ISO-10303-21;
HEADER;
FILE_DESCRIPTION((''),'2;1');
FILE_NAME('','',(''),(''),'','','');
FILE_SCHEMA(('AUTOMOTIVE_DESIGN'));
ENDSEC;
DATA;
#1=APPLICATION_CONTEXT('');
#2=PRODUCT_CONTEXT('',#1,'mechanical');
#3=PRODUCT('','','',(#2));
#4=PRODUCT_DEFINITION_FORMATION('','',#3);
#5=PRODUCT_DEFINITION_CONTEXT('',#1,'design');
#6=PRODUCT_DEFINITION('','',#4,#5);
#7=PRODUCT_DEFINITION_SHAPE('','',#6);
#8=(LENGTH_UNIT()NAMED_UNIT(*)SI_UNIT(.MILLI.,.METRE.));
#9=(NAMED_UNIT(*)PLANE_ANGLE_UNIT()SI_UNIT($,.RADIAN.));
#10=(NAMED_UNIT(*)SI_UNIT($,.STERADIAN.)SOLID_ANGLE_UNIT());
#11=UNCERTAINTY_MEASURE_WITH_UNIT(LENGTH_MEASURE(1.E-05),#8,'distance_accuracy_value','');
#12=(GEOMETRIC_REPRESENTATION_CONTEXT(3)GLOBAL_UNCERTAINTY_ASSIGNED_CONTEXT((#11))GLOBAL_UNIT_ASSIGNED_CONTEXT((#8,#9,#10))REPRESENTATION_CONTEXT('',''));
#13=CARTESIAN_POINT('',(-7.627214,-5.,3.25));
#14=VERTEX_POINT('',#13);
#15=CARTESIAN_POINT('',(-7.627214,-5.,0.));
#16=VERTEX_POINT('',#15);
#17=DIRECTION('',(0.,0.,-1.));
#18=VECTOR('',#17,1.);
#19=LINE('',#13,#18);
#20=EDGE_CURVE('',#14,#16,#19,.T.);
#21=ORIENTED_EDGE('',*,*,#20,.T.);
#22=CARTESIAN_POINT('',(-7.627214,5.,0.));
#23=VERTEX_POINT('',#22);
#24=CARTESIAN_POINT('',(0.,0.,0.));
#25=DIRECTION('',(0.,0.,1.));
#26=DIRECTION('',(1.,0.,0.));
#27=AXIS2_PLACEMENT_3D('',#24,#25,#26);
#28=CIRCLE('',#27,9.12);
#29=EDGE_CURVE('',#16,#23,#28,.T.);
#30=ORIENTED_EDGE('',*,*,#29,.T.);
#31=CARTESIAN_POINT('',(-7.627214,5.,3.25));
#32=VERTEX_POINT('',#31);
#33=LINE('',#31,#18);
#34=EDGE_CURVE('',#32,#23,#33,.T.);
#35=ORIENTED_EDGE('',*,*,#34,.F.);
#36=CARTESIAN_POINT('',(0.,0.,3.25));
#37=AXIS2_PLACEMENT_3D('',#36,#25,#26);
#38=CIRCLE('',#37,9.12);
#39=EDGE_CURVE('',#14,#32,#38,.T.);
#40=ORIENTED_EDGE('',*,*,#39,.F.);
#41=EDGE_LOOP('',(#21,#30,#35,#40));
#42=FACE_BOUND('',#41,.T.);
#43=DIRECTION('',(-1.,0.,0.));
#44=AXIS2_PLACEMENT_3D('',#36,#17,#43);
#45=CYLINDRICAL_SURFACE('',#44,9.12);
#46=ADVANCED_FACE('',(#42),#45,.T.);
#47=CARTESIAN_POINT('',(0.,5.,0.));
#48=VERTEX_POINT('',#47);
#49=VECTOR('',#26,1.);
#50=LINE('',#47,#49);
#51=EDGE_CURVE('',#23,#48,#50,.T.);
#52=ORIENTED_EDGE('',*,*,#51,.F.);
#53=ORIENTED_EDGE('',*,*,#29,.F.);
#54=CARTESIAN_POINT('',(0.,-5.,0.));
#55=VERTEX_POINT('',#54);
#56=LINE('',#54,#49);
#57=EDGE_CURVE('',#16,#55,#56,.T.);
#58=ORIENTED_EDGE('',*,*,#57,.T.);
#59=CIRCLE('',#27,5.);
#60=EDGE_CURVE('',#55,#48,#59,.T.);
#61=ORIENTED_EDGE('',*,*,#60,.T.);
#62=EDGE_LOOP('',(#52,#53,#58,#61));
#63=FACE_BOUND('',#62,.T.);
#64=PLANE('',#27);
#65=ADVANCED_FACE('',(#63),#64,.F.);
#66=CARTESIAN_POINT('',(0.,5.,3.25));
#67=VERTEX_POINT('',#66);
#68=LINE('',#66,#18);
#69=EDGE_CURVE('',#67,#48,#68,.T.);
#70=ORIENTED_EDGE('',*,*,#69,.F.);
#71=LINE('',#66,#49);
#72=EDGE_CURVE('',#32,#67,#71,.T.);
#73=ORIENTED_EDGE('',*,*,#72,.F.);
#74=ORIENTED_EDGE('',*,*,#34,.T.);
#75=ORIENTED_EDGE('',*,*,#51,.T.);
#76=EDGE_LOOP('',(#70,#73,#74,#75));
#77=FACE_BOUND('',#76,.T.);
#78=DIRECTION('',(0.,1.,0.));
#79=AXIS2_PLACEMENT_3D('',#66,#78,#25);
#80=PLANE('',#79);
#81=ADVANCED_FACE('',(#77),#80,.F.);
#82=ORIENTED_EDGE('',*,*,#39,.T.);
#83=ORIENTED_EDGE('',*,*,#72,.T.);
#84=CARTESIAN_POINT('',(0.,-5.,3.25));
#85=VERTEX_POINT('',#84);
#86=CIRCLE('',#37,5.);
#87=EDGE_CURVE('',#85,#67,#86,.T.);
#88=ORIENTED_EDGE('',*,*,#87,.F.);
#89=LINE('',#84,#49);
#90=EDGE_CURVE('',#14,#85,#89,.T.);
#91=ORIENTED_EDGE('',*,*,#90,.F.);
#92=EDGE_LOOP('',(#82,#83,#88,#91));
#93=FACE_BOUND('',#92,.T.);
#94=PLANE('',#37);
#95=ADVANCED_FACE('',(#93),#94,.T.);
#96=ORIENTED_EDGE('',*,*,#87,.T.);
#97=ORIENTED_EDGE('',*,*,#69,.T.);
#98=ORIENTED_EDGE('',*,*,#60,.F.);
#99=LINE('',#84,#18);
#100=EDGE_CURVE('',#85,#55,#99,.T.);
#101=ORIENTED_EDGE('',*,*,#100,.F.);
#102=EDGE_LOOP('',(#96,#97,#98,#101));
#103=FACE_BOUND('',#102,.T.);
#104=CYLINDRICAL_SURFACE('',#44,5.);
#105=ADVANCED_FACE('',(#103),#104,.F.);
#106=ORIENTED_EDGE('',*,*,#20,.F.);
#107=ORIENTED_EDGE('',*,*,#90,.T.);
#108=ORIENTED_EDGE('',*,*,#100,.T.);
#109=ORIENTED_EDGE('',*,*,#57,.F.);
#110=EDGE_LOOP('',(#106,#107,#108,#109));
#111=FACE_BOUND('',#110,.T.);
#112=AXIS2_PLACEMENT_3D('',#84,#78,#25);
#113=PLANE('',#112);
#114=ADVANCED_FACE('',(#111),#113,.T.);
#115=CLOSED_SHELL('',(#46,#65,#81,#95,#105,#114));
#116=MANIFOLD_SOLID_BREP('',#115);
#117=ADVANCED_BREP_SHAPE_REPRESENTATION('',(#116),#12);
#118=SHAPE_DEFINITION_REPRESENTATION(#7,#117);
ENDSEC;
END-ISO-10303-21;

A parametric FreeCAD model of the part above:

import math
import FreeCAD as App
import Part
import Sketcher

V = App.Vector

doc = App.newDocument("Part")
body = doc.addObject("PartDesign::Body", "Body")

# Sketch on XY plane
sketch1 = doc.addObject("Sketcher::SketchObject", "Sketch")
body.addObject(sketch1)
sketch1.AttachmentSupport = (doc.XY_Plane, [""])
sketch1.MapMode = "FlatFace"
sketch1.addGeometry(Part.ArcOfCircle(Part.Circle(V(0, 0, 0), V(0, 0, 1), 9.12), math.radians(-146.753262), math.radians(146.753262)), False)
sketch1.addGeometry(Part.LineSegment(V(-7.627214, 5, 0), V(0, 5, 0)), False)
sketch1.addGeometry(Part.ArcOfCircle(Part.Circle(V(0, 0, 0), V(0, 0, 1), 5), math.radians(-90), math.radians(90)), False)
sketch1.addGeometry(Part.LineSegment(V(0, -5, 0), V(-7.627214, -5, 0)), False)
sketch1.addConstraint(Sketcher.Constraint("Coincident", 0, 2, 1, 1))
sketch1.addConstraint(Sketcher.Constraint("Tangent", 1, 2, 2, 2))
sketch1.addConstraint(Sketcher.Constraint("Tangent", 2, 1, 3, 1))
sketch1.addConstraint(Sketcher.Constraint("Coincident", 3, 2, 0, 1))
sketch1.addConstraint(Sketcher.Constraint("Horizontal", 1))
sketch1.addConstraint(Sketcher.Constraint("Horizontal", 3))
sketch1.addConstraint(Sketcher.Constraint("Coincident", 0, 3, -1, 1))
sketch1.addConstraint(Sketcher.Constraint("Coincident", 2, 3, -1, 1))
sketch1.addConstraint(Sketcher.Constraint("Radius", 2, 5.0))
sketch1.addConstraint(Sketcher.Constraint("Radius", 0, 9.12))
pad1 = doc.addObject("PartDesign::Pad", "Pad")
body.addObject(pad1)
pad1.Profile = sketch1
pad1.Length = 3.25

doc.recompute()
